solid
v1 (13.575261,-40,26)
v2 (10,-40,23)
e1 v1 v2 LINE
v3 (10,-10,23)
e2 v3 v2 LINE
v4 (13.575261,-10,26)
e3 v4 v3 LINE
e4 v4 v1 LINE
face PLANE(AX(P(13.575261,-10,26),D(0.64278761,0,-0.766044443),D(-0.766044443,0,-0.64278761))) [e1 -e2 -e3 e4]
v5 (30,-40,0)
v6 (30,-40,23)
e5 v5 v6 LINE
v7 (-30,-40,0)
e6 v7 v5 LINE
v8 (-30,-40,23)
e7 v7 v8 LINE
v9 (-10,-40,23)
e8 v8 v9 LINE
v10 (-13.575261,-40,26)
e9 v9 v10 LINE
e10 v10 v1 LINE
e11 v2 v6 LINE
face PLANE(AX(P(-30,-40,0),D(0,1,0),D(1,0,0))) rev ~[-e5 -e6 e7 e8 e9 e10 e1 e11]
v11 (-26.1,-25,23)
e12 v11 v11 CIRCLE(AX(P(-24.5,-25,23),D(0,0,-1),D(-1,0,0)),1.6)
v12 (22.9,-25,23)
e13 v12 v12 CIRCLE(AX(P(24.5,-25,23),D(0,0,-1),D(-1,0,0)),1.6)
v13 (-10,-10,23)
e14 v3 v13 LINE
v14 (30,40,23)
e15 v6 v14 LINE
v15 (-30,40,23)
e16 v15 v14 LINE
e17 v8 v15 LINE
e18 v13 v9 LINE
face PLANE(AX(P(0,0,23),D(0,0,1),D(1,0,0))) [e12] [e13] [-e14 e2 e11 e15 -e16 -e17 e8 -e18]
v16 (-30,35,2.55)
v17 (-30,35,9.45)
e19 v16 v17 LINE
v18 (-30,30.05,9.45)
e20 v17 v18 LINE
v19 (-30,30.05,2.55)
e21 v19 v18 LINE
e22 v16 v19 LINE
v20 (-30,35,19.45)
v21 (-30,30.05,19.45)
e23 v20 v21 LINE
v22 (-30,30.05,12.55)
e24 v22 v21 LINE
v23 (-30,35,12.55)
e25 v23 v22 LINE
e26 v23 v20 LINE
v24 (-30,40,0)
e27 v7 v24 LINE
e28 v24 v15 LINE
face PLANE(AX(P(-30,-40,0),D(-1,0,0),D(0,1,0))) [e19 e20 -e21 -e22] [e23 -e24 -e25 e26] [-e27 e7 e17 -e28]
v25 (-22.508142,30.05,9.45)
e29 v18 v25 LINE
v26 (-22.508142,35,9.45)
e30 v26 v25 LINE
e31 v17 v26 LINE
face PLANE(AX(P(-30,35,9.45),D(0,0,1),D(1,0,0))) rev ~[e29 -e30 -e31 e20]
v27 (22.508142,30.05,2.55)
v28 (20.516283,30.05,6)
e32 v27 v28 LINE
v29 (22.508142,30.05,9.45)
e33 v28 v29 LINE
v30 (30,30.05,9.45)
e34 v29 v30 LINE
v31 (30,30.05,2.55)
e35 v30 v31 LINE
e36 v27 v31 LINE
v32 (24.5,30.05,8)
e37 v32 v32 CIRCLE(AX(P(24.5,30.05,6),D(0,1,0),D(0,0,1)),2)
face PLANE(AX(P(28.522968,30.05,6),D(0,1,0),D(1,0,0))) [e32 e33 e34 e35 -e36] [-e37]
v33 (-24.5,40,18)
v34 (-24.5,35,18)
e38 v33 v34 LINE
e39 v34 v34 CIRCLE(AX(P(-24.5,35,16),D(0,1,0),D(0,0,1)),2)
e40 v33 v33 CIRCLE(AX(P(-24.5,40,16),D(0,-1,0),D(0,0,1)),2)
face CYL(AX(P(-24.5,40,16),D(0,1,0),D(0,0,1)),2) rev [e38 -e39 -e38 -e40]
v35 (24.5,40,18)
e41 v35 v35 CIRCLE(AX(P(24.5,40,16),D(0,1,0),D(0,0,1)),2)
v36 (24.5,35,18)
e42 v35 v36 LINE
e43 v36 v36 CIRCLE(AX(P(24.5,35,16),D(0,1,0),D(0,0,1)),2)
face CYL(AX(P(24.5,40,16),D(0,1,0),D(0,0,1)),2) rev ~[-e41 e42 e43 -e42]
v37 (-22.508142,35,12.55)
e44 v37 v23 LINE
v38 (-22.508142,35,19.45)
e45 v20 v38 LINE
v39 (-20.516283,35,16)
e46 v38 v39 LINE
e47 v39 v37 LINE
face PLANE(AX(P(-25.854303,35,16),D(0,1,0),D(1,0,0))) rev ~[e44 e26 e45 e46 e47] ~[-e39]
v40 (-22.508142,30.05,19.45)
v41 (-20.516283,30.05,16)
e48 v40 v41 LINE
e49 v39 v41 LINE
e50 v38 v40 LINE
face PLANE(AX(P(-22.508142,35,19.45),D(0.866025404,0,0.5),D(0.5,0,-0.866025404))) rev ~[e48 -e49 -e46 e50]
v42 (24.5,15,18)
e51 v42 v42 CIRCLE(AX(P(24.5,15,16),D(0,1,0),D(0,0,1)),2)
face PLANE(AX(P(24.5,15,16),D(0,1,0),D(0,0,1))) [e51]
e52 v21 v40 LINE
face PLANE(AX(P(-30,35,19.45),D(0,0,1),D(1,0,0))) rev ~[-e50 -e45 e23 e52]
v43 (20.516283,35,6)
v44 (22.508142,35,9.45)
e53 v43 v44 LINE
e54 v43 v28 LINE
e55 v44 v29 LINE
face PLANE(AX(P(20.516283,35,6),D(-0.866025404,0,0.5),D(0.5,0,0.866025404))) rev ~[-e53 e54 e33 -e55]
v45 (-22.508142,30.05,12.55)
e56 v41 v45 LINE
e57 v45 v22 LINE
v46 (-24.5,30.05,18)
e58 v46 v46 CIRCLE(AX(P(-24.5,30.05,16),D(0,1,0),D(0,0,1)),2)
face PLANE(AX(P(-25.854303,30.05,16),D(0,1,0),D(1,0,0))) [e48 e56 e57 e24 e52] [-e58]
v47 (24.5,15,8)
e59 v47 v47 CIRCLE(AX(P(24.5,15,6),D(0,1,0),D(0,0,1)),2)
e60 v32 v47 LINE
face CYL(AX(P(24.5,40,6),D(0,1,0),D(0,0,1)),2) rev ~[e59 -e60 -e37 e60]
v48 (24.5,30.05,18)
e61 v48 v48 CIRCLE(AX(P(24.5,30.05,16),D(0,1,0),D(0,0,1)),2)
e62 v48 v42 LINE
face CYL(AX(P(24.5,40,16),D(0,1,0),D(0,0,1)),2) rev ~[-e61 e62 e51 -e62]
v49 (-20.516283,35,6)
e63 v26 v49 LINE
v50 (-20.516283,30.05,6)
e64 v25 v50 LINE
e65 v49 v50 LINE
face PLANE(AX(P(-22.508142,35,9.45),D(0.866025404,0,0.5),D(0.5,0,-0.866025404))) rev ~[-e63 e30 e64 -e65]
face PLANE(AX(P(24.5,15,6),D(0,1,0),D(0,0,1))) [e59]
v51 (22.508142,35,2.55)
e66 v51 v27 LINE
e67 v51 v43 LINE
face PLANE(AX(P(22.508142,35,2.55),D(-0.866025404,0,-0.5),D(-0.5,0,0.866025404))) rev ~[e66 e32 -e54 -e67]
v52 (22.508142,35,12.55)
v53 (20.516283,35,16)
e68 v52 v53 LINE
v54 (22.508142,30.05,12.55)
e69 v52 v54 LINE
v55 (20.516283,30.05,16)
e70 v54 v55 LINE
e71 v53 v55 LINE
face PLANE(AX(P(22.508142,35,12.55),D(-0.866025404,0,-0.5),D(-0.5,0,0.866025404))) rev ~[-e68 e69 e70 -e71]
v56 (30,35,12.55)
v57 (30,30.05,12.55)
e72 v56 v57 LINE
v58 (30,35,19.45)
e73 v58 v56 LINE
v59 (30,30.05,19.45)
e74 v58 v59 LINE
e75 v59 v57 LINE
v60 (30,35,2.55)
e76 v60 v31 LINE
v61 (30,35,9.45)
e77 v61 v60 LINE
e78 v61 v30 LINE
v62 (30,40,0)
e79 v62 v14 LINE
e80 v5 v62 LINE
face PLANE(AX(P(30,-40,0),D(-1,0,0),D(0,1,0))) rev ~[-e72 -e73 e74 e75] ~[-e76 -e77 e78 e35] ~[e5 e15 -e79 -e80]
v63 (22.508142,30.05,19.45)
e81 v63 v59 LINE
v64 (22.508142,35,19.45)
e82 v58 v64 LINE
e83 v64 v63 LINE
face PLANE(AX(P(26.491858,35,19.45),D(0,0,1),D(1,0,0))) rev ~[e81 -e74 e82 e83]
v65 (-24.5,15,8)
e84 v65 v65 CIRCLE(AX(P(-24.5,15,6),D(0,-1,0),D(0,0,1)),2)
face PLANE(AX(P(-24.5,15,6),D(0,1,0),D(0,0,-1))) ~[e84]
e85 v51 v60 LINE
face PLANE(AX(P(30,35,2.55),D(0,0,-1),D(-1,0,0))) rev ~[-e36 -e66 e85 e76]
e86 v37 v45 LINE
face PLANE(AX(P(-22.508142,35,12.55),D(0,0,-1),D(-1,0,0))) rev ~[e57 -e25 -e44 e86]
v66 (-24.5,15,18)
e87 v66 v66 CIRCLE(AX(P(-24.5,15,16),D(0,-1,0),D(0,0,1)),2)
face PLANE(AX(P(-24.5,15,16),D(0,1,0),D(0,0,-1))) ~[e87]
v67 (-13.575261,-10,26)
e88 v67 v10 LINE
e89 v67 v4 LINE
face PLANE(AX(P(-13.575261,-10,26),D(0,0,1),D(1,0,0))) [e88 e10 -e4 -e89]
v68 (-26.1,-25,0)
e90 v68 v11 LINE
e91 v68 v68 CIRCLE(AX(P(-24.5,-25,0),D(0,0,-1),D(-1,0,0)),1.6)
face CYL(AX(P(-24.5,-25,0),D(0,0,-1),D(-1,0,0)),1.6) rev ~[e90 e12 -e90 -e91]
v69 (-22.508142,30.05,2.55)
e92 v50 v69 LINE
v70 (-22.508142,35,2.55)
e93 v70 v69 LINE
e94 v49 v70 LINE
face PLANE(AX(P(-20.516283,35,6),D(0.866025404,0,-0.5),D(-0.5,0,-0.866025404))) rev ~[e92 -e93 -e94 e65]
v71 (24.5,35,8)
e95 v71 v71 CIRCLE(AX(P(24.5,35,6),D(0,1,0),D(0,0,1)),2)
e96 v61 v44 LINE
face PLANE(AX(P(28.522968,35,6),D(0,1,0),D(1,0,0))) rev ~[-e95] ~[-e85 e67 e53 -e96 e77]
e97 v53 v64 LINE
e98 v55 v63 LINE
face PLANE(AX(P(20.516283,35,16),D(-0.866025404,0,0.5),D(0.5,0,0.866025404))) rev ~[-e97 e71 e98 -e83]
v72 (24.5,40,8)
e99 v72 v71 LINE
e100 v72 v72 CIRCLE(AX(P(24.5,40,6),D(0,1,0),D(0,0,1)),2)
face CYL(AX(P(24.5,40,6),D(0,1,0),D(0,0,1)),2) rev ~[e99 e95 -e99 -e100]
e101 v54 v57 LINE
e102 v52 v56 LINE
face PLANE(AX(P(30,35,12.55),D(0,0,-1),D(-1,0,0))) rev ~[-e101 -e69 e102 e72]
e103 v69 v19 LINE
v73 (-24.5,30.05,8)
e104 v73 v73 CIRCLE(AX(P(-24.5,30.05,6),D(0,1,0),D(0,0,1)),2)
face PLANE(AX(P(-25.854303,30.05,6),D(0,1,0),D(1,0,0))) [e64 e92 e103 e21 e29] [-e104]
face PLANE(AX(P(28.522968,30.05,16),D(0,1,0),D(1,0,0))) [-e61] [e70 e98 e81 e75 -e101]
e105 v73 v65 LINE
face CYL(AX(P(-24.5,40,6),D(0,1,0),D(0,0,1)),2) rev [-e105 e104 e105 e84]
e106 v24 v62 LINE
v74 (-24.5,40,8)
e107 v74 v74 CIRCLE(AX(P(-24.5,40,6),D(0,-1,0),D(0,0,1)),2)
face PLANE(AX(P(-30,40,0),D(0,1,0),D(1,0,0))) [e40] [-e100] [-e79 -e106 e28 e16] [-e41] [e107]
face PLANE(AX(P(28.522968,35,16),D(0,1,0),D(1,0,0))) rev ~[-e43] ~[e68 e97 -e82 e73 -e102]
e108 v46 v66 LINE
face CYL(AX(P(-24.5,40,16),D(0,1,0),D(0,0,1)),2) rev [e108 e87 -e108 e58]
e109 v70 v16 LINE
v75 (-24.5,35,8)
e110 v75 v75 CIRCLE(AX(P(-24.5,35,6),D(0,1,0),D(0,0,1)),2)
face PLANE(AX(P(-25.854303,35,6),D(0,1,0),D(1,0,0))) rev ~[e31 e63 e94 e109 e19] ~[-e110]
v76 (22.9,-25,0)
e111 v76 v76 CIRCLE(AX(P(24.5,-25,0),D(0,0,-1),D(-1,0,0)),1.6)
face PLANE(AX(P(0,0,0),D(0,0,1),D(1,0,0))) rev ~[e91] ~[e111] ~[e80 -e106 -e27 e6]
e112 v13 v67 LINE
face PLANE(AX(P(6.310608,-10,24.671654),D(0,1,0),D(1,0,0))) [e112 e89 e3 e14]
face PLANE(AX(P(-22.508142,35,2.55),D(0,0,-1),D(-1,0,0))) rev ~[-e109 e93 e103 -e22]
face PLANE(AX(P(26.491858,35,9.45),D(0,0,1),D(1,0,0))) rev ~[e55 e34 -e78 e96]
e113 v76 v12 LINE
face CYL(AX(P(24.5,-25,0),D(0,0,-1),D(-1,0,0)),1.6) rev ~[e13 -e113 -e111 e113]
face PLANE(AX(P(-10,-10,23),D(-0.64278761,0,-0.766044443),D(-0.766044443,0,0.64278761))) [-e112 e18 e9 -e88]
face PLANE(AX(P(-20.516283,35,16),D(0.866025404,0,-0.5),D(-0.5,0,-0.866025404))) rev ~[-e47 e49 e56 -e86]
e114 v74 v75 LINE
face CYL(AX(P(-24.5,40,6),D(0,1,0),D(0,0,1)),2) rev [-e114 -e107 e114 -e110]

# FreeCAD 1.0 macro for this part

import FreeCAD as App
import Part
import Sketcher
Q = App.Units.Quantity

doc = App.newDocument("Part")
body = doc.addObject("PartDesign::Body", "Body")

sketch1 = body.newObject("Sketcher::SketchObject", "Sketch")
sketch1.AttachmentSupport = (doc.getObject("XY_Plane"), [""])
sketch1.MapMode = "FlatFace"
sketch1.addGeometry([
    Part.LineSegment(App.Vector(-30, 40, 0), App.Vector(-30, -40, 0)),
    Part.LineSegment(App.Vector(-30, -40, 0), App.Vector(30, -40, 0)),
    Part.LineSegment(App.Vector(30, -40, 0), App.Vector(30, 40, 0)),
    Part.LineSegment(App.Vector(30, 40, 0), App.Vector(-30, 40, 0)),
], False)
sketch1.addConstraint([
    Sketcher.Constraint("Coincident", 0, 2, 1, 1),
    Sketcher.Constraint("Coincident", 1, 2, 2, 1),
    Sketcher.Constraint("Coincident", 2, 2, 3, 1),
    Sketcher.Constraint("Coincident", 3, 2, 0, 1),
    Sketcher.Constraint("Vertical", 0),
    Sketcher.Constraint("Horizontal", 1),
    Sketcher.Constraint("Vertical", 2),
    Sketcher.Constraint("Horizontal", 3),
    Sketcher.Constraint("Symmetric", 0, 2, 2, 2, -1, 1),
    Sketcher.Constraint("DistanceX", 1, 1, 1, 2, 60.0),
    Sketcher.Constraint("DistanceY", 0, 2, 0, 1, 80.0),
])
pad1 = body.newObject("PartDesign::Pad", "Pad")
pad1.Profile = sketch1
pad1.Length = 23

sketch2 = body.newObject("Sketcher::SketchObject", "Sketch001")
sketch2.AttachmentSupport = (doc.getObject("XZ_Plane"), [""])
sketch2.MapMode = "FlatFace"
sketch2.AttachmentOffset = App.Placement(App.Vector(0, 0, -40), App.Rotation())
sketch2.addGeometry([
    Part.Circle(App.Vector(24.5, 6, 0), App.Vector(0, 0, 1), 2),
    Part.Circle(App.Vector(24.5, 16, 0), App.Vector(0, 0, 1), 2),
], False)
sketch2.addConstraint([
    Sketcher.Constraint("Equal", 0, 1),
    Sketcher.Constraint("Vertical", 0, 3, 1, 3),
    Sketcher.Constraint("Diameter", 0, 4.0),
    Sketcher.Constraint("DistanceY", -1, 1, 0, 3, 6.0),
    Sketcher.Constraint("DistanceY", -1, 1, 1, 3, 16.0),
    Sketcher.Constraint("DistanceX", -1, 1, 0, 3, 24.5),
])
pocket1 = body.newObject("PartDesign::Pocket", "Pocket")
pocket1.Profile = sketch2
pocket1.Length = 25
pocket1.Reversed = True
doc.recompute()

mirrored = body.newObject("PartDesign::Mirrored", "Mirrored")
mirrored.Originals = [pocket1]
mirrored.MirrorPlane = (doc.getObject("YZ_Plane"), [""])
body.Tip = mirrored

sketch3 = body.newObject("Sketcher::SketchObject", "Sketch002")
sketch3.AttachmentSupport = (doc.getObject("XZ_Plane"), [""])
sketch3.MapMode = "FlatFace"
sketch3.AttachmentOffset = App.Placement(App.Vector(0, 0, 10), App.Rotation())
sketch3.addGeometry([
    Part.LineSegment(App.Vector(13.575261, 26, 0), App.Vector(10, 23, 0)),
    Part.LineSegment(App.Vector(10, 23, 0), App.Vector(-10, 23, 0)),
    Part.LineSegment(App.Vector(-10, 23, 0), App.Vector(-13.575261, 26, 0)),
    Part.LineSegment(App.Vector(-13.575261, 26, 0), App.Vector(13.575261, 26, 0)),
], False)
sketch3.addConstraint([
    Sketcher.Constraint("Coincident", 0, 2, 1, 1),
    Sketcher.Constraint("Coincident", 1, 2, 2, 1),
    Sketcher.Constraint("Coincident", 2, 2, 3, 1),
    Sketcher.Constraint("Coincident", 3, 2, 0, 1),
    Sketcher.Constraint("Horizontal", 1),
    Sketcher.Constraint("Horizontal", 3),
    Sketcher.Constraint("Equal", 0, 2),
    Sketcher.Constraint("DistanceX", 1, 2, 1, 1, 20.0),
    Sketcher.Constraint("Angle", 0, Q("-140 deg")),
    Sketcher.Constraint("DistanceX", -1, 1, 0, 2, 10.0),
    Sketcher.Constraint("DistanceY", -1, 1, 0, 2, 23.0),
    Sketcher.Constraint("DistanceY", -1, 1, 2, 2, 26.0),
])
pad2 = body.newObject("PartDesign::Pad", "Pad001")
pad2.Profile = sketch3
pad2.Length = 30

sketch4 = body.newObject("Sketcher::SketchObject", "Sketch003")
sketch4.AttachmentSupport = (doc.getObject("XY_Plane"), [""])
sketch4.MapMode = "FlatFace"
sketch4.addGeometry([
    Part.Circle(App.Vector(24.5, -25, 0), App.Vector(0, 0, 1), 1.6),
    Part.Circle(App.Vector(-24.5, -25, 0), App.Vector(0, 0, 1), 1.6),
], False)
sketch4.addConstraint([
    Sketcher.Constraint("Equal", 0, 1),
    Sketcher.Constraint("Symmetric", 0, 3, 1, 3, -2),
    Sketcher.Constraint("Diameter", 0, 3.2),
    Sketcher.Constraint("DistanceY", 0, 3, -1, 1, 25.0),
    Sketcher.Constraint("DistanceX", 1, 3, 0, 3, 49.0),
])
pocket2 = body.newObject("PartDesign::Pocket", "Pocket001")
pocket2.Profile = sketch4
pocket2.Type = "ThroughAll"
pocket2.Reversed = True

sketch5 = body.newObject("Sketcher::SketchObject", "Sketch004")
sketch5.AttachmentSupport = (doc.getObject("XZ_Plane"), [""])
sketch5.MapMode = "FlatFace"
sketch5.AttachmentOffset = App.Placement(App.Vector(0, 0, -35), App.Rotation())
sketch5.addGeometry([
    Part.LineSegment(App.Vector(-22.508142, 9.45, 0), App.Vector(-20.516283, 6, 0)),
    Part.LineSegment(App.Vector(-20.516283, 6, 0), App.Vector(-22.508142, 2.55, 0)),
    Part.LineSegment(App.Vector(-22.508142, 2.55, 0), App.Vector(-30, 2.55, 0)),
    Part.LineSegment(App.Vector(-30, 2.55, 0), App.Vector(-30, 9.45, 0)),
    Part.LineSegment(App.Vector(-30, 9.45, 0), App.Vector(-22.508142, 9.45, 0)),
    Part.Circle(App.Vector(-24.5, 6, 0), App.Vector(0, 0, 1), 2),
    Part.LineSegment(App.Vector(22.508142, 9.45, 0), App.Vector(30, 9.45, 0)),
    Part.LineSegment(App.Vector(30, 9.45, 0), App.Vector(30, 2.55, 0)),
    Part.LineSegment(App.Vector(30, 2.55, 0), App.Vector(22.508142, 2.55, 0)),
    Part.LineSegment(App.Vector(22.508142, 2.55, 0), App.Vector(20.516283, 6, 0)),
    Part.LineSegment(App.Vector(20.516283, 6, 0), App.Vector(22.508142, 9.45, 0)),
    Part.Circle(App.Vector(24.5, 6, 0), App.Vector(0, 0, 1), 2),
], False)
sketch5.addConstraint([
    Sketcher.Constraint("Coincident", 0, 2, 1, 1),
    Sketcher.Constraint("Coincident", 1, 2, 2, 1),
    Sketcher.Constraint("Coincident", 2, 2, 3, 1),
    Sketcher.Constraint("Coincident", 3, 2, 4, 1),
    Sketcher.Constraint("Coincident", 4, 2, 0, 1),
    Sketcher.Constraint("Coincident", 6, 2, 7, 1),
    Sketcher.Constraint("Coincident", 7, 2, 8, 1),
    Sketcher.Constraint("Coincident", 8, 2, 9, 1),
    Sketcher.Constraint("Coincident", 9, 2, 10, 1),
    Sketcher.Constraint("Coincident", 10, 2, 6, 1),
    Sketcher.Constraint("Horizontal", 2),
    Sketcher.Constraint("Vertical", 3),
    Sketcher.Constraint("Horizontal", 4),
    Sketcher.Constraint("Horizontal", 6),
    Sketcher.Constraint("Vertical", 7),
    Sketcher.Constraint("Horizontal", 8),
    Sketcher.Constraint("Equal", 5, 11),
    Sketcher.Constraint("Symmetric", 5, 3, 11, 3, -2),
    Sketcher.Constraint("Symmetric", 3, 2, 6, 2, -2),
    Sketcher.Constraint("Symmetric", 1, 2, 8, 2, -2),
    Sketcher.Constraint("Symmetric", 0, 2, 9, 2, -2),
    Sketcher.Constraint("Parallel", 0, 9),
    Sketcher.Constraint("Parallel", 1, 10),
    Sketcher.Constraint("Horizontal", 11, 3, 0, 2),
    Sketcher.Constraint("Vertical", 1, 2, 4, 2),
    Sketcher.Constraint("Diameter", 5, 4.0),
    Sketcher.Constraint("Angle", 0, Q("-60 deg")),
    Sketcher.Constraint("DistanceY", 3, 1, 3, 2, 6.9),
    Sketcher.Constraint("DistanceY", -1, 1, 5, 3, 6.0),
    Sketcher.Constraint("DistanceX", 2, 2, -1, 1, 30.0),
    Sketcher.Constraint("DistanceX", 5, 3, 11, 3, 49.0),
    Sketcher.Constraint("DistanceX", 2, 2, 2, 1, 7.491858),
])
pocket3 = body.newObject("PartDesign::Pocket", "Pocket002")
pocket3.Profile = sketch5
pocket3.Length = 4.95
pocket3.Reversed = True
doc.recompute()

linearpattern = body.newObject("PartDesign::LinearPattern", "LinearPattern")
linearpattern.Originals = [pocket3]
linearpattern.Direction = (doc.getObject("Z_Axis"), [""])
linearpattern.Mode = "offset"
linearpattern.Offset = 10
linearpattern.Occurrences = 2
body.Tip = linearpattern

doc.recompute()
